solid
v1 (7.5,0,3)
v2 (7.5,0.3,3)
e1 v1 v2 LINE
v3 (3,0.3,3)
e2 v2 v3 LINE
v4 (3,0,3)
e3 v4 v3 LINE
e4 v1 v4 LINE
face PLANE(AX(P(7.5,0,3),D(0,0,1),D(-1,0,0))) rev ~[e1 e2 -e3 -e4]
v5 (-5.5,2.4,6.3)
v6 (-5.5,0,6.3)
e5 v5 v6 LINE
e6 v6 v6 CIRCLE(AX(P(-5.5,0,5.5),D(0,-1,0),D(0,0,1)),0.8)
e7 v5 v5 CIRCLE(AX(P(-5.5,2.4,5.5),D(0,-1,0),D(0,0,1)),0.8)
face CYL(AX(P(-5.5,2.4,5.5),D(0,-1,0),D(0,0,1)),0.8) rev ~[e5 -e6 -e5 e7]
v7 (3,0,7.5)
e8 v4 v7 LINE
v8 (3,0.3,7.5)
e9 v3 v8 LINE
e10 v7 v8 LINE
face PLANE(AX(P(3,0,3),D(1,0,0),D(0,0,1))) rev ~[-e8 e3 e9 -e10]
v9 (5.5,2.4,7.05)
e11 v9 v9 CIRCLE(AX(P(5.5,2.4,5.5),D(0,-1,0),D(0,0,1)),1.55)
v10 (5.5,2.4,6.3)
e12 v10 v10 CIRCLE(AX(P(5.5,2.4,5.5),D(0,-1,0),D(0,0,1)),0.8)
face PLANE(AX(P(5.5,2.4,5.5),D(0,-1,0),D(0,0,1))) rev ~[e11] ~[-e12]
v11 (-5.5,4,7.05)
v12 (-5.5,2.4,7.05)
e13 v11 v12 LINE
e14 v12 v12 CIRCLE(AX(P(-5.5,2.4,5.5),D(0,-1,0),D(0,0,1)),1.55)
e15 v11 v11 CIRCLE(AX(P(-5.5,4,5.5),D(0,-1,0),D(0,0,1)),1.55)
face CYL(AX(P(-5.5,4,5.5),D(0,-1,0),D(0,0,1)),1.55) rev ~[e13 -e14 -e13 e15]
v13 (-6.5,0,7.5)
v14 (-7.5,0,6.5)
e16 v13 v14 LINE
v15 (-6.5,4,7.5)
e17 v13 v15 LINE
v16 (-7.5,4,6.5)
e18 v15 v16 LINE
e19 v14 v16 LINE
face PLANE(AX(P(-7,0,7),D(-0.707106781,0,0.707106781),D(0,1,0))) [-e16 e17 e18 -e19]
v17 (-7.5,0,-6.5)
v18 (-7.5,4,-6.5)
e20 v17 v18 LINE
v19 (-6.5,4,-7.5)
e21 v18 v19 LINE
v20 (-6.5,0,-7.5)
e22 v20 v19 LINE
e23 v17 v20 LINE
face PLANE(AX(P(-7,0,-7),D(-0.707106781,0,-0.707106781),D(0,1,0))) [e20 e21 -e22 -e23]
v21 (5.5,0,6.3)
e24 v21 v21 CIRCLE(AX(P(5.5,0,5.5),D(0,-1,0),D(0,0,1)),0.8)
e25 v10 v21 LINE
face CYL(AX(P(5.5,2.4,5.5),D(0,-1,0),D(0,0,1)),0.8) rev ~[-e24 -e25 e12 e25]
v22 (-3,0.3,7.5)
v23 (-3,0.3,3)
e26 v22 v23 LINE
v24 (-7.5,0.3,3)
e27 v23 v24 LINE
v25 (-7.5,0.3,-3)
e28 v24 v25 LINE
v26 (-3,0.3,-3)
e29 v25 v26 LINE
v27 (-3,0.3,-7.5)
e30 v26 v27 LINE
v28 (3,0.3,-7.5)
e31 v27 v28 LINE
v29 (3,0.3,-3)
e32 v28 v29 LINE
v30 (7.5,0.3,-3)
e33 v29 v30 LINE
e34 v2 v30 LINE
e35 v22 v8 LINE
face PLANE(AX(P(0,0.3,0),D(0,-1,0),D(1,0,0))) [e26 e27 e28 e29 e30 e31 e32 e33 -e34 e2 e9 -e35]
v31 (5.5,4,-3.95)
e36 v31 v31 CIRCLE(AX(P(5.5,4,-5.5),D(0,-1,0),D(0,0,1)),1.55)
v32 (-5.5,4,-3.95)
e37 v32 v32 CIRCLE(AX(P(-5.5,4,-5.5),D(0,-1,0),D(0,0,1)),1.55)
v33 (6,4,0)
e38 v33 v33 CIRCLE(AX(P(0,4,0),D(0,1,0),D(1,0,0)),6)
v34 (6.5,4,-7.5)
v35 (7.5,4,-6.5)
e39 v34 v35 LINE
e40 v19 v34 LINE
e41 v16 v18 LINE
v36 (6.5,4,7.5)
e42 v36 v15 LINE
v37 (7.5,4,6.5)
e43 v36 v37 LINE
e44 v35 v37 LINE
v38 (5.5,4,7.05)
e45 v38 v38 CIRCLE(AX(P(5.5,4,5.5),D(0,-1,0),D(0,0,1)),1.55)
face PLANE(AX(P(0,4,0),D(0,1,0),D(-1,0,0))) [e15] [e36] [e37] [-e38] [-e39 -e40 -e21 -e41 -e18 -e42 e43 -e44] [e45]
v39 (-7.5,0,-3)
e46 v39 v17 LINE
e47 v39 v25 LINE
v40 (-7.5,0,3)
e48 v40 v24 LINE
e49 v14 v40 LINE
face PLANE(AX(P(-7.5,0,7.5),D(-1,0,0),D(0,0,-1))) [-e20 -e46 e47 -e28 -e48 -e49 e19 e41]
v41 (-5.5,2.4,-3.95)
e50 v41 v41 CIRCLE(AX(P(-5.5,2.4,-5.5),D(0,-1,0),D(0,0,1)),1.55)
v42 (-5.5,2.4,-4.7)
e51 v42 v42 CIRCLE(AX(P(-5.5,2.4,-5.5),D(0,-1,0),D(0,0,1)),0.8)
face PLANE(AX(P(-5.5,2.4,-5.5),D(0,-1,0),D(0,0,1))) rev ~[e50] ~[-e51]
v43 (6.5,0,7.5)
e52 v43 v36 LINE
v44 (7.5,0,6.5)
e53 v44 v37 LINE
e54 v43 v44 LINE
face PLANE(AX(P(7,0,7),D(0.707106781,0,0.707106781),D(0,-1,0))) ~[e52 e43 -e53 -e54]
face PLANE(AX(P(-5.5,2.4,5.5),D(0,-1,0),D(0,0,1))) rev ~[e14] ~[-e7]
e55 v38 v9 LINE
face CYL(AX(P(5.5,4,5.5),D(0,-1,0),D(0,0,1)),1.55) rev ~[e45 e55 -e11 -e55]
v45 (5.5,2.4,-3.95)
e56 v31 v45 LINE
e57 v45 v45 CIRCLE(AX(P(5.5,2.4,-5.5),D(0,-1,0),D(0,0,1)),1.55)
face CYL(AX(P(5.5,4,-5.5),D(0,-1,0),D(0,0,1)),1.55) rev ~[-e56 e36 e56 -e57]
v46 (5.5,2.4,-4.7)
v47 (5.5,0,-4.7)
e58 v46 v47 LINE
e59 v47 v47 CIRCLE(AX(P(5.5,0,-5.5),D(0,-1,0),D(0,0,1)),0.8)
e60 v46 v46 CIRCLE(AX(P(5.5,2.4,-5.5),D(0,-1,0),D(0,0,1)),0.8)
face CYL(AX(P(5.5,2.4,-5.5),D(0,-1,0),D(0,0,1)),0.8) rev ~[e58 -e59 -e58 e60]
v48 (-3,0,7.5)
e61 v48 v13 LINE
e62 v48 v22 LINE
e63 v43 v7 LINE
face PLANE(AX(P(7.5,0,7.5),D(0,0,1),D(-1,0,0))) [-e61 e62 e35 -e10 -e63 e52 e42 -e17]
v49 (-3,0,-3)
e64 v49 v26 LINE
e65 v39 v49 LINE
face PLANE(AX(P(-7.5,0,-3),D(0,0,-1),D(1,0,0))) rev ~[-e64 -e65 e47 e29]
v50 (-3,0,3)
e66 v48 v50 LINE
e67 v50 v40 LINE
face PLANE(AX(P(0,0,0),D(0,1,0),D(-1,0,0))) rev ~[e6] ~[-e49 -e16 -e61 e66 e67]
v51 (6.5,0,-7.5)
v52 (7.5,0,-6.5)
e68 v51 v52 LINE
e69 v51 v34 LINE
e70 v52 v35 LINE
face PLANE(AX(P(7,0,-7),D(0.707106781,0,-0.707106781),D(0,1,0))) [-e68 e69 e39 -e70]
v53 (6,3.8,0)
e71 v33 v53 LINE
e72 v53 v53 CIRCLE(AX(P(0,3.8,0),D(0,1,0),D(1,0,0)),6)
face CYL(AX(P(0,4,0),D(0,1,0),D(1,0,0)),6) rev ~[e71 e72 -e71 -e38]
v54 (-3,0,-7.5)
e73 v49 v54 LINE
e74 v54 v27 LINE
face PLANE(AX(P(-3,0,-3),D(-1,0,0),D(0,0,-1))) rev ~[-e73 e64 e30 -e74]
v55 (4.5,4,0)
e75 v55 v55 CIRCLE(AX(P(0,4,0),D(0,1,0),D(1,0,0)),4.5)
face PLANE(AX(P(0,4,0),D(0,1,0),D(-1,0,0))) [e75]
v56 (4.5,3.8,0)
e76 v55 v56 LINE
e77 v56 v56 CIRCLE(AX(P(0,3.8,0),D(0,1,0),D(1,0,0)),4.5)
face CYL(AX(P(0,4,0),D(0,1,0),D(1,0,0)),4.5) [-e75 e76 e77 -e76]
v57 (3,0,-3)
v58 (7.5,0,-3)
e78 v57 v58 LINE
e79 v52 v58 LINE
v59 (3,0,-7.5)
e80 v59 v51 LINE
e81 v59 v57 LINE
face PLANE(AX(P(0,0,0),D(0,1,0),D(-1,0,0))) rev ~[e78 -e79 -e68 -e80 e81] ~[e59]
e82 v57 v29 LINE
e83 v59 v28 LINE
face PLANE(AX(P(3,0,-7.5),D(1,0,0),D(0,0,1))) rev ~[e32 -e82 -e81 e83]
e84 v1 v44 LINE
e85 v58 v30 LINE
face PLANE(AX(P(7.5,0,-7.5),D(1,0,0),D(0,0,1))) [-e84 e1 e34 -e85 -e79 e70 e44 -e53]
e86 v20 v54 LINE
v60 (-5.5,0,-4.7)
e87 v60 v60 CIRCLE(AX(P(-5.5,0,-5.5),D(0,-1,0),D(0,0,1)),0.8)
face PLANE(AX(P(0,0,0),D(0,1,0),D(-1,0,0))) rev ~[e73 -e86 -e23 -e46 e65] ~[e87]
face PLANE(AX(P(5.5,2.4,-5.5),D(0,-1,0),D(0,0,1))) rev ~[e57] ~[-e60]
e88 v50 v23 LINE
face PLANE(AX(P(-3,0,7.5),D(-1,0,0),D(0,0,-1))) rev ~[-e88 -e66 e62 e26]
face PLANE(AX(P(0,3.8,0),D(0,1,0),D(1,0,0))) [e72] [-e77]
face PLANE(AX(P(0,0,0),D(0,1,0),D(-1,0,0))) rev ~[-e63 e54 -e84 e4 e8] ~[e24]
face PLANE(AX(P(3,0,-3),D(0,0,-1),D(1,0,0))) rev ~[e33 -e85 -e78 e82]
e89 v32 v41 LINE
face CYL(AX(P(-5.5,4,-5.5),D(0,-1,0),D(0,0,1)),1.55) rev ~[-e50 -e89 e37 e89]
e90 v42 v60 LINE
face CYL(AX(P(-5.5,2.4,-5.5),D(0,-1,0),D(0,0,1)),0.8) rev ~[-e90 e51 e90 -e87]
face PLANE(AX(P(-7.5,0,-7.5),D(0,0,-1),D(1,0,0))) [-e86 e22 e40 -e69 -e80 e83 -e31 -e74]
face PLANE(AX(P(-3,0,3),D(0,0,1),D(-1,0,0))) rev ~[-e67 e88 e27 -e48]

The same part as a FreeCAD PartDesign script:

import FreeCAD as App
import Part
import Sketcher

V = App.Vector


def edges_at(feature, points):
    """Names of the edges that pass closest to the given points."""
    edges = feature.Shape.Edges
    near = lambda p: min(range(len(edges)), key=lambda i: edges[i].distToShape(Part.Vertex(*p))[0])
    return sorted({f"Edge{near(p) + 1}" for p in points})

doc = App.newDocument("Part")
params = doc.addObject("Spreadsheet::Sheet", "Params")
for row, (alias, value) in enumerate([
    ("sketch1_width", "15 mm"),
    ("pad1_length", "4 mm"),
    ("chamfer_size", "1 mm"),
    ("sketch2_diameter", "1.6 mm"),
    ("hole_diameter", "1.6 mm"),
    ("hole_cbore_diameter", "3.1 mm"),
    ("hole_cbore_depth", "1.6 mm"),
    ("sketch3_diameter", "12 mm"),
    ("sketch3_diameter2", "9 mm"),
    ("pocket1_length", "0.2 mm"),
    ("sketch4_width", "6 mm"),
    ("sketch4_width2", "4.5 mm"),
    ("pocket2_length", "0.3 mm"),
], start=1):
    params.set(f"A{row}", alias)
    params.set(f"B{row}", "=" + value)
    params.setAlias(f"B{row}", alias)

body = doc.addObject("PartDesign::Body", "Body")

# Sketch on XZ plane
sketch1 = doc.addObject("Sketcher::SketchObject", "Sketch")
body.addObject(sketch1)
sketch1.AttachmentSupport = (doc.XZ_Plane, [""])
sketch1.MapMode = "FlatFace"
sketch1.addGeometry(Part.LineSegment(V(-8, 8, 0), V(8, 8, 0)), False)
sketch1.addGeometry(Part.LineSegment(V(8, 8, 0), V(8, -8, 0)), False)
sketch1.addGeometry(Part.LineSegment(V(8, -8, 0), V(-8, -8, 0)), False)
sketch1.addGeometry(Part.LineSegment(V(-8, -8, 0), V(-8, 8, 0)), False)
sketch1.addConstraint(Sketcher.Constraint("Coincident", 0, 2, 1, 1))
sketch1.addConstraint(Sketcher.Constraint("Coincident", 1, 2, 2, 1))
sketch1.addConstraint(Sketcher.Constraint("Coincident", 2, 2, 3, 1))
sketch1.addConstraint(Sketcher.Constraint("Coincident", 3, 2, 0, 1))
sketch1.addConstraint(Sketcher.Constraint("Horizontal", 0))
sketch1.addConstraint(Sketcher.Constraint("Vertical", 1))
sketch1.addConstraint(Sketcher.Constraint("Horizontal", 2))
sketch1.addConstraint(Sketcher.Constraint("Vertical", 3))
sketch1.addConstraint(Sketcher.Constraint("Symmetric", 0, 2, 2, 2, -1, 1))
sketch1.addConstraint(Sketcher.Constraint("Equal", 2, 1))
sketch1.addConstraint(Sketcher.Constraint("DistanceX", 0, 1, 0, 2, 15.0))
sketch1.setExpression("Constraints[10]", "Params.sketch1_width")
pad1 = doc.addObject("PartDesign::Pad", "Pad")
body.addObject(pad1)
pad1.Profile = sketch1
pad1.setExpression("Length", "Params.pad1_length")
pad1.Reversed = True
doc.recompute()

chamfer = doc.addObject("PartDesign::Chamfer", "Chamfer")
body.addObject(chamfer)
chamfer.Base = (pad1, edges_at(pad1, [
    (-7.5, 2, 7.5),
    (7.5, 2, 7.5),
    (7.5, 2, -7.5),
    (-7.5, 2, -7.5),
]))
chamfer.setExpression("Size", "Params.chamfer_size")

# Sketch on XZ plane
sketch2 = doc.addObject("Sketcher::SketchObject", "Sketch001")
body.addObject(sketch2)
sketch2.AttachmentSupport = (doc.XZ_Plane, [""])
sketch2.MapMode = "FlatFace"
sketch2.AttachmentOffset = App.Placement(V(0, 0, -4), App.Rotation())
sketch2.addGeometry(Part.Circle(V(-5.5, -5.5, 0), V(0, 0, 1), 0.8), False)
sketch2.addGeometry(Part.Circle(V(5.5, -5.5, 0), V(0, 0, 1), 0.8), False)
sketch2.addGeometry(Part.Circle(V(5.5, 5.5, 0), V(0, 0, 1), 0.8), False)
sketch2.addGeometry(Part.Circle(V(-5.5, 5.5, 0), V(0, 0, 1), 0.8), False)
sketch2.addConstraint(Sketcher.Constraint("Equal", 0, 1))
sketch2.addConstraint(Sketcher.Constraint("Equal", 1, 2))
sketch2.addConstraint(Sketcher.Constraint("Equal", 2, 3))
sketch2.addConstraint(Sketcher.Constraint("Symmetric", 0, 3, 2, 3, -1, 1))
sketch2.addConstraint(Sketcher.Constraint("Symmetric", 1, 3, 3, 3, -1, 1))
sketch2.addConstraint(Sketcher.Constraint("Symmetric", 0, 3, 1, 3, -2))
sketch2.addConstraint(Sketcher.Constraint("Diameter", 0, 1.6))
sketch2.addConstraint(Sketcher.Constraint("DistanceX", 0, 3, 1, 3, 11.0))
sketch2.addConstraint(Sketcher.Constraint("DistanceY", 1, 3, 2, 3, 11.0))
sketch2.setExpression("Constraints[6]", "Params.sketch2_diameter")
doc.recompute()
hole = doc.addObject("PartDesign::Hole", "Hole")
body.addObject(hole)
hole.Profile = sketch2
hole.ThreadType = "None"
hole.setExpression("Diameter", "Params.hole_diameter")
hole.DepthType = "ThroughAll"
hole.HoleCutType = "Counterbore"
hole.setExpression("HoleCutDiameter", "Params.hole_cbore_diameter")
hole.setExpression("HoleCutDepth", "Params.hole_cbore_depth")
hole.Reversed = True

# Sketch on XZ plane
sketch3 = doc.addObject("Sketcher::SketchObject", "Sketch002")
body.addObject(sketch3)
sketch3.AttachmentSupport = (doc.XZ_Plane, [""])
sketch3.MapMode = "FlatFace"
sketch3.AttachmentOffset = App.Placement(V(0, 0, -4), App.Rotation())
sketch3.addGeometry(Part.Circle(V(0, 0, 0), V(0, 0, 1), 6), False)
sketch3.addGeometry(Part.Circle(V(0, 0, 0), V(0, 0, 1), 4.5), False)
sketch3.addConstraint(Sketcher.Constraint("Coincident", 0, 3, -1, 1))
sketch3.addConstraint(Sketcher.Constraint("Coincident", 1, 3, -1, 1))
sketch3.addConstraint(Sketcher.Constraint("Diameter", 0, 12.0))
sketch3.addConstraint(Sketcher.Constraint("Diameter", 1, 9.0))
sketch3.setExpression("Constraints[2]", "Params.sketch3_diameter")
sketch3.setExpression("Constraints[3]", "Params.sketch3_diameter2")
pocket1 = doc.addObject("PartDesign::Pocket", "Pocket")
body.addObject(pocket1)
pocket1.Profile = sketch3
pocket1.setExpression("Length", "Params.pocket1_length")
pocket1.Reversed = True

# Sketch on XZ plane
sketch4 = doc.addObject("Sketcher::SketchObject", "Sketch003")
body.addObject(sketch4)
sketch4.AttachmentSupport = (doc.XZ_Plane, [""])
sketch4.MapMode = "FlatFace"
sketch4.addGeometry(Part.LineSegment(V(3, 7.5, 0), V(-3, 7.5, 0)), False)
sketch4.addGeometry(Part.LineSegment(V(-3, 7.5, 0), V(-3, 3, 0)), False)
sketch4.addGeometry(Part.LineSegment(V(-3, 3, 0), V(-7.5, 3, 0)), False)
sketch4.addGeometry(Part.LineSegment(V(-7.5, 3, 0), V(-7.5, -3, 0)), False)
sketch4.addGeometry(Part.LineSegment(V(-7.5, -3, 0), V(-3, -3, 0)), False)
sketch4.addGeometry(Part.LineSegment(V(-3, -3, 0), V(-3, -7.5, 0)), False)
sketch4.addGeometry(Part.LineSegment(V(-3, -7.5, 0), V(3, -7.5, 0)), False)
sketch4.addGeometry(Part.LineSegment(V(3, -7.5, 0), V(3, -3, 0)), False)
sketch4.addGeometry(Part.LineSegment(V(3, -3, 0), V(7.5, -3, 0)), False)
sketch4.addGeometry(Part.LineSegment(V(7.5, -3, 0), V(7.5, 3, 0)), False)
sketch4.addGeometry(Part.LineSegment(V(7.5, 3, 0), V(3, 3, 0)), False)
sketch4.addGeometry(Part.LineSegment(V(3, 3, 0), V(3, 7.5, 0)), False)
sketch4.addConstraint(Sketcher.Constraint("Coincident", 0, 2, 1, 1))
sketch4.addConstraint(Sketcher.Constraint("Coincident", 1, 2, 2, 1))
sketch4.addConstraint(Sketcher.Constraint("Coincident", 2, 2, 3, 1))
sketch4.addConstraint(Sketcher.Constraint("Coincident", 3, 2, 4, 1))
sketch4.addConstraint(Sketcher.Constraint("Coincident", 4, 2, 5, 1))
sketch4.addConstraint(Sketcher.Constraint("Coincident", 5, 2, 6, 1))
sketch4.addConstraint(Sketcher.Constraint("Coincident", 6, 2, 7, 1))
sketch4.addConstraint(Sketcher.Constraint("Coincident", 7, 2, 8, 1))
sketch4.addConstraint(Sketcher.Constraint("Coincident", 8, 2, 9, 1))
sketch4.addConstraint(Sketcher.Constraint("Coincident", 9, 2, 10, 1))
sketch4.addConstraint(Sketcher.Constraint("Coincident", 10, 2, 11, 1))
sketch4.addConstraint(Sketcher.Constraint("Coincident", 11, 2, 0, 1))
sketch4.addConstraint(Sketcher.Constraint("Horizontal", 0))
sketch4.addConstraint(Sketcher.Constraint("Vertical", 1))
sketch4.addConstraint(Sketcher.Constraint("Horizontal", 2))
sketch4.addConstraint(Sketcher.Constraint("Vertical", 3))
sketch4.addConstraint(Sketcher.Constraint("Horizontal", 4))
sketch4.addConstraint(Sketcher.Constraint("Vertical", 5))
sketch4.addConstraint(Sketcher.Constraint("Horizontal", 6))
sketch4.addConstraint(Sketcher.Constraint("Vertical", 7))
sketch4.addConstraint(Sketcher.Constraint("Horizontal", 8))
sketch4.addConstraint(Sketcher.Constraint("Vertical", 9))
sketch4.addConstraint(Sketcher.Constraint("Horizontal", 10))
sketch4.addConstraint(Sketcher.Constraint("Vertical", 11))
sketch4.addConstraint(Sketcher.Constraint("Symmetric", 0, 2, 6, 2, -1, 1))
sketch4.addConstraint(Sketcher.Constraint("Symmetric", 2, 2, 8, 2, -1, 1))
sketch4.addConstraint(Sketcher.Constraint("Symmetric", 4, 2, 10, 2, -1, 1))
sketch4.addConstraint(Sketcher.Constraint("Symmetric", 4, 2, 7, 2, -2))
sketch4.addConstraint(Sketcher.Constraint("Equal", 10, 1))
sketch4.addConstraint(Sketcher.Constraint("Equal", 6, 3))
sketch4.addConstraint(Sketcher.Constraint("DistanceX", 0, 2, 0, 1, 6.0))
sketch4.addConstraint(Sketcher.Constraint("DistanceX", 2, 2, 2, 1, 4.5))
sketch4.setExpression("Constraints[30]", "Params.sketch4_width")
sketch4.setExpression("Constraints[31]", "Params.sketch4_width2")
pocket2 = doc.addObject("PartDesign::Pocket", "Pocket001")
body.addObject(pocket2)
pocket2.Profile = sketch4
pocket2.setExpression("Length", "Params.pocket2_length")

doc.recompute()
